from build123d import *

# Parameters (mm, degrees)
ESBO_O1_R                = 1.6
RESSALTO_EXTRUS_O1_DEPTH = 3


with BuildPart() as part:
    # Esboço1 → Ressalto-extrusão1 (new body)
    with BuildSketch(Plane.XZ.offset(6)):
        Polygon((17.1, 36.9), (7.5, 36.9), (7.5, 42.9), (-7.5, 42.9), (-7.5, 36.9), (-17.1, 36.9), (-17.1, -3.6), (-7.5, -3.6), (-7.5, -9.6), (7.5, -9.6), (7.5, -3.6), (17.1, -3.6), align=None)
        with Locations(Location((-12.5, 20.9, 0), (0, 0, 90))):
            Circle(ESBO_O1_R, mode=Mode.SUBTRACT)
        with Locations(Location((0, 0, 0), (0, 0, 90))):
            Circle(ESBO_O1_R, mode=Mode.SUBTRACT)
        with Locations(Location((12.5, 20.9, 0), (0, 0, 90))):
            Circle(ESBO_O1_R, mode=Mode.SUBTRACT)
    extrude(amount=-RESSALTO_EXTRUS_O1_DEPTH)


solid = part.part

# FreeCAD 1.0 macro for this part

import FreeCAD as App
import Part
import Sketcher
Q = App.Units.Quantity

doc = App.newDocument("Part")
body = doc.addObject("PartDesign::Body", "Body")

# Sketch on XZ plane
sketch1 = body.newObject("Sketcher::SketchObject", "Sketch")
sketch1.AttachmentSupport = (doc.getObject("XZ_Plane"), [""])
sketch1.MapMode = "FlatFace"
sketch1.AttachmentOffset = App.Placement(App.Vector(0, 0, 6), App.Rotation())
sketch1.addGeometry([
    Part.LineSegment(App.Vector(17.1, 36.9, 0), App.Vector(7.5, 36.9, 0)),  # 0
    Part.LineSegment(App.Vector(7.5, 36.9, 0), App.Vector(7.5, 42.9, 0)),  # 1
    Part.LineSegment(App.Vector(7.5, 42.9, 0), App.Vector(-7.5, 42.9, 0)),  # 2
    Part.LineSegment(App.Vector(-7.5, 42.9, 0), App.Vector(-7.5, 36.9, 0)),  # 3
    Part.LineSegment(App.Vector(-7.5, 36.9, 0), App.Vector(-17.1, 36.9, 0)),  # 4
    Part.LineSegment(App.Vector(-17.1, 36.9, 0), App.Vector(-17.1, -3.6, 0)),  # 5
    Part.LineSegment(App.Vector(-17.1, -3.6, 0), App.Vector(-7.5, -3.6, 0)),  # 6
    Part.LineSegment(App.Vector(-7.5, -3.6, 0), App.Vector(-7.5, -9.6, 0)),  # 7
    Part.LineSegment(App.Vector(-7.5, -9.6, 0), App.Vector(7.5, -9.6, 0)),  # 8
    Part.LineSegment(App.Vector(7.5, -9.6, 0), App.Vector(7.5, -3.6, 0)),  # 9
    Part.LineSegment(App.Vector(7.5, -3.6, 0), App.Vector(17.1, -3.6, 0)),  # 10
    Part.LineSegment(App.Vector(17.1, -3.6, 0), App.Vector(17.1, 36.9, 0)),  # 11
    Part.Circle(App.Vector(0, 0, 0), App.Vector(0, 0, 1), 1.6),  # 12
    Part.Circle(App.Vector(-12.5, 20.9, 0), App.Vector(0, 0, 1), 1.6),  # 13
    Part.Circle(App.Vector(12.5, 20.9, 0), App.Vector(0, 0, 1), 1.6),  # 14
], False)
sketch1.addConstraint([
    Sketcher.Constraint("Coincident", 0, 2, 1, 1),
    Sketcher.Constraint("Coincident", 1, 2, 2, 1),
    Sketcher.Constraint("Coincident", 2, 2, 3, 1),
    Sketcher.Constraint("Coincident", 3, 2, 4, 1),
    Sketcher.Constraint("Coincident", 4, 2, 5, 1),
    Sketcher.Constraint("Coincident", 5, 2, 6, 1),
    Sketcher.Constraint("Coincident", 6, 2, 7, 1),
    Sketcher.Constraint("Coincident", 7, 2, 8, 1),
    Sketcher.Constraint("Coincident", 8, 2, 9, 1),
    Sketcher.Constraint("Coincident", 9, 2, 10, 1),
    Sketcher.Constraint("Coincident", 10, 2, 11, 1),
    Sketcher.Constraint("Coincident", 11, 2, 0, 1),
    Sketcher.Constraint("Horizontal", 0),
    Sketcher.Constraint("Vertical", 1),
    Sketcher.Constraint("Horizontal", 2),
    Sketcher.Constraint("Vertical", 3),
    Sketcher.Constraint("Horizontal", 4),
    Sketcher.Constraint("Vertical", 5),
    Sketcher.Constraint("Horizontal", 6),
    Sketcher.Constraint("Vertical", 7),
    Sketcher.Constraint("Horizontal", 8),
    Sketcher.Constraint("Vertical", 9),
    Sketcher.Constraint("Horizontal", 10),
    Sketcher.Constraint("Vertical", 11),
    Sketcher.Constraint("Coincident", 12, 3, -1, 1),
    Sketcher.Constraint("Equal", 12, 13),
    Sketcher.Constraint("Equal", 13, 14),
    Sketcher.Constraint("Symmetric", 13, 3, 14, 3, -2),
    Sketcher.Constraint("Symmetric", 0, 2, 3, 2, -2),
    Sketcher.Constraint("Symmetric", 6, 2, 9, 2, -2),
    Sketcher.Constraint("Vertical", 3, 2, 6, 2),
    Sketcher.Constraint("Equal", 0, 4),
    Sketcher.Constraint("Equal", 3, 7),
    Sketcher.Constraint("Diameter", 12, Q("3.2 mm")),
    Sketcher.Constraint("DistanceX", 2, 2, 2, 1, Q("15 mm")),
    Sketcher.Constraint("DistanceY", 1, 1, 1, 2, Q("6 mm")),
    Sketcher.Constraint("DistanceX", 0, 2, 0, 1, Q("9.6 mm")),
    Sketcher.Constraint("DistanceY", 5, 2, 5, 1, Q("40.5 mm")),
    Sketcher.Constraint("DistanceX", 13, 3, 14, 3, Q("25 mm")),
    Sketcher.Constraint("DistanceY", 14, 3, 0, 2, Q("16 mm")),
    Sketcher.Constraint("DistanceY", -1, 1, 13, 3, Q("20.9 mm")),
])
pad1 = body.newObject("PartDesign::Pad", "Pad")
pad1.Profile = sketch1
pad1.Length = 3
pad1.Reversed = True

doc.recompute()
